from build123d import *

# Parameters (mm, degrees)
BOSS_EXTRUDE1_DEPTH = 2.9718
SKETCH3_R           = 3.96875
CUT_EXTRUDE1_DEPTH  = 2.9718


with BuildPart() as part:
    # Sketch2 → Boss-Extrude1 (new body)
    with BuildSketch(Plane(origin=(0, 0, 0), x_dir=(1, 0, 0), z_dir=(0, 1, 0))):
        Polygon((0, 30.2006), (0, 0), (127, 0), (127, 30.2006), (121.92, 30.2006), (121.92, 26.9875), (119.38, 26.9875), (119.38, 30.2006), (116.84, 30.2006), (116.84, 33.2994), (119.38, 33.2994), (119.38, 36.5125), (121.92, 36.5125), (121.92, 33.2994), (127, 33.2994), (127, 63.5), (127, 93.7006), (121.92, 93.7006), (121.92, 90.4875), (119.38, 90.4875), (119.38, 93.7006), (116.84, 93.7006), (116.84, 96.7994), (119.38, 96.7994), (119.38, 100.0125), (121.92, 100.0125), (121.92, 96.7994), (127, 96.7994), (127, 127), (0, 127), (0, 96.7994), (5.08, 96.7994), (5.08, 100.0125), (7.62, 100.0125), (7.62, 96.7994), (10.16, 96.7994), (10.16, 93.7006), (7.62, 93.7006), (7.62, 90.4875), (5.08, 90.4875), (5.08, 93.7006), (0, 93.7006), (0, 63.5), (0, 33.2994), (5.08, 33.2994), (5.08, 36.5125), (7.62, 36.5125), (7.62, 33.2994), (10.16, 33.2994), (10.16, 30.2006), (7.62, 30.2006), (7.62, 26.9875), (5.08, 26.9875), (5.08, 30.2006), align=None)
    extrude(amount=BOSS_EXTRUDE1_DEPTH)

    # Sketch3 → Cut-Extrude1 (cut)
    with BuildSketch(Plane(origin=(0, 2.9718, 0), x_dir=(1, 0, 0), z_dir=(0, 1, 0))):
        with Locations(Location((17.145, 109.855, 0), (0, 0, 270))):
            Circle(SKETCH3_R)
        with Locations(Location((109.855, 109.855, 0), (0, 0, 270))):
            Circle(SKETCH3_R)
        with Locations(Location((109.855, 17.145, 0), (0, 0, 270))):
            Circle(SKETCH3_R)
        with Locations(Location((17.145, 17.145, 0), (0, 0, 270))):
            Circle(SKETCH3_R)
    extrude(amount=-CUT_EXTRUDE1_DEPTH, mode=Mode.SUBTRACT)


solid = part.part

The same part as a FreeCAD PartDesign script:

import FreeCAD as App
import Part
import Sketcher
from FreeCAD import Vector
Q = App.Units.Quantity

doc = App.newDocument("Part")
body = doc.addObject("PartDesign::Body", "Body")

# Sketch on XZ plane
sketch1 = doc.addObject("Sketcher::SketchObject", "Sketch")
body.addObject(sketch1)
sketch1.AttachmentSupport = (doc.XZ_Plane, [""])
sketch1.MapMode = "FlatFace"
sketch1.addGeometry(Part.LineSegment(Vector(0, -30.2, 0), Vector(0, 0, 0)), False)
sketch1.addGeometry(Part.LineSegment(Vector(0, 0, 0), Vector(127, 0, 0)), False)
sketch1.addGeometry(Part.LineSegment(Vector(127, 0, 0), Vector(127, -30.2, 0)), False)
sketch1.addGeometry(Part.LineSegment(Vector(127, -30.2, 0), Vector(121.9, -30.2, 0)), False)
sketch1.addGeometry(Part.LineSegment(Vector(121.9, -30.2, 0), Vector(121.9, -27, 0)), False)
sketch1.addGeometry(Part.LineSegment(Vector(121.9, -27, 0), Vector(119.4, -27, 0)), False)
sketch1.addGeometry(Part.LineSegment(Vector(119.4, -27, 0), Vector(119.4, -30.2, 0)), False)
sketch1.addGeometry(Part.LineSegment(Vector(119.4, -30.2, 0), Vector(116.8, -30.2, 0)), False)
sketch1.addGeometry(Part.LineSegment(Vector(116.8, -30.2, 0), Vector(116.8, -33.3, 0)), False)
sketch1.addGeometry(Part.LineSegment(Vector(116.8, -33.3, 0), Vector(119.4, -33.3, 0)), False)
sketch1.addGeometry(Part.LineSegment(Vector(119.4, -33.3, 0), Vector(119.4, -36.5, 0)), False)
sketch1.addGeometry(Part.LineSegment(Vector(119.4, -36.5, 0), Vector(121.9, -36.5, 0)), False)
sketch1.addGeometry(Part.LineSegment(Vector(121.9, -36.5, 0), Vector(121.9, -33.3, 0)), False)
sketch1.addGeometry(Part.LineSegment(Vector(121.9, -33.3, 0), Vector(127, -33.3, 0)), False)
sketch1.addGeometry(Part.LineSegment(Vector(127, -33.3, 0), Vector(127, -93.7, 0)), False)
sketch1.addGeometry(Part.LineSegment(Vector(127, -93.7, 0), Vector(121.9, -93.7, 0)), False)
sketch1.addGeometry(Part.LineSegment(Vector(121.9, -93.7, 0), Vector(121.9, -90.5, 0)), False)
sketch1.addGeometry(Part.LineSegment(Vector(121.9, -90.5, 0), Vector(119.4, -90.5, 0)), False)
sketch1.addGeometry(Part.LineSegment(Vector(119.4, -90.5, 0), Vector(119.4, -93.7, 0)), False)
sketch1.addGeometry(Part.LineSegment(Vector(119.4, -93.7, 0), Vector(116.8, -93.7, 0)), False)
sketch1.addGeometry(Part.LineSegment(Vector(116.8, -93.7, 0), Vector(116.8, -96.8, 0)), False)
sketch1.addGeometry(Part.LineSegment(Vector(116.8, -96.8, 0), Vector(119.4, -96.8, 0)), False)
sketch1.addGeometry(Part.LineSegment(Vector(119.4, -96.8, 0), Vector(119.4, -100, 0)), False)
sketch1.addGeometry(Part.LineSegment(Vector(119.4, -100, 0), Vector(121.9, -100, 0)), False)
sketch1.addGeometry(Part.LineSegment(Vector(121.9, -100, 0), Vector(121.9, -96.8, 0)), False)
sketch1.addGeometry(Part.LineSegment(Vector(121.9, -96.8, 0), Vector(127, -96.8, 0)), False)
sketch1.addGeometry(Part.LineSegment(Vector(127, -96.8, 0), Vector(127, -127, 0)), False)
sketch1.addGeometry(Part.LineSegment(Vector(127, -127, 0), Vector(0, -127, 0)), False)
sketch1.addGeometry(Part.LineSegment(Vector(0, -127, 0), Vector(0, -96.8, 0)), False)
sketch1.addGeometry(Part.LineSegment(Vector(0, -96.8, 0), Vector(5.1, -96.8, 0)), False)
sketch1.addGeometry(Part.LineSegment(Vector(5.1, -96.8, 0), Vector(5.1, -100, 0)), False)
sketch1.addGeometry(Part.LineSegment(Vector(5.1, -100, 0), Vector(7.6, -100, 0)), False)
sketch1.addGeometry(Part.LineSegment(Vector(7.6, -100, 0), Vector(7.6, -96.8, 0)), False)
sketch1.addGeometry(Part.LineSegment(Vector(7.6, -96.8, 0), Vector(10.2, -96.8, 0)), False)
sketch1.addGeometry(Part.LineSegment(Vector(10.2, -96.8, 0), Vector(10.2, -93.7, 0)), False)
sketch1.addGeometry(Part.LineSegment(Vector(10.2, -93.7, 0), Vector(7.6, -93.7, 0)), False)
sketch1.addGeometry(Part.LineSegment(Vector(7.6, -93.7, 0), Vector(7.6, -90.5, 0)), False)
sketch1.addGeometry(Part.LineSegment(Vector(7.6, -90.5, 0), Vector(5.1, -90.5, 0)), False)
sketch1.addGeometry(Part.LineSegment(Vector(5.1, -90.5, 0), Vector(5.1, -93.7, 0)), False)
sketch1.addGeometry(Part.LineSegment(Vector(5.1, -93.7, 0), Vector(0, -93.7, 0)), False)
sketch1.addGeometry(Part.LineSegment(Vector(0, -93.7, 0), Vector(0, -33.3, 0)), False)
sketch1.addGeometry(Part.LineSegment(Vector(0, -33.3, 0), Vector(5.1, -33.3, 0)), False)
sketch1.addGeometry(Part.LineSegment(Vector(5.1, -33.3, 0), Vector(5.1, -36.5, 0)), False)
sketch1.addGeometry(Part.LineSegment(Vector(5.1, -36.5, 0), Vector(7.6, -36.5, 0)), False)
sketch1.addGeometry(Part.LineSegment(Vector(7.6, -36.5, 0), Vector(7.6, -33.3, 0)), False)
sketch1.addGeometry(Part.LineSegment(Vector(7.6, -33.3, 0), Vector(10.2, -33.3, 0)), False)
sketch1.addGeometry(Part.LineSegment(Vector(10.2, -33.3, 0), Vector(10.2, -30.2, 0)), False)
sketch1.addGeometry(Part.LineSegment(Vector(10.2, -30.2, 0), Vector(7.6, -30.2, 0)), False)
sketch1.addGeometry(Part.LineSegment(Vector(7.6, -30.2, 0), Vector(7.6, -27, 0)), False)
sketch1.addGeometry(Part.LineSegment(Vector(7.6, -27, 0), Vector(5.1, -27, 0)), False)
sketch1.addGeometry(Part.LineSegment(Vector(5.1, -27, 0), Vector(5.1, -30.2, 0)), False)
sketch1.addGeometry(Part.LineSegment(Vector(5.1, -30.2, 0), Vector(0, -30.2, 0)), False)
sketch1.addConstraint(Sketcher.Constraint("Coincident", 0, 2, 1, 1))
sketch1.addConstraint(Sketcher.Constraint("Coincident", 1, 2, 2, 1))
sketch1.addConstraint(Sketcher.Constraint("Coincident", 2, 2, 3, 1))
sketch1.addConstraint(Sketcher.Constraint("Coincident", 3, 2, 4, 1))
sketch1.addConstraint(Sketcher.Constraint("Coincident", 4, 2, 5, 1))
sketch1.addConstraint(Sketcher.Constraint("Coincident", 5, 2, 6, 1))
sketch1.addConstraint(Sketcher.Constraint("Coincident", 6, 2, 7, 1))
sketch1.addConstraint(Sketcher.Constraint("Coincident", 7, 2, 8, 1))
sketch1.addConstraint(Sketcher.Constraint("Coincident", 8, 2, 9, 1))
sketch1.addConstraint(Sketcher.Constraint("Coincident", 9, 2, 10, 1))
sketch1.addConstraint(Sketcher.Constraint("Coincident", 10, 2, 11, 1))
sketch1.addConstraint(Sketcher.Constraint("Coincident", 11, 2, 12, 1))
sketch1.addConstraint(Sketcher.Constraint("Coincident", 12, 2, 13, 1))
sketch1.addConstraint(Sketcher.Constraint("Coincident", 13, 2, 14, 1))
sketch1.addConstraint(Sketcher.Constraint("Coincident", 14, 2, 15, 1))
sketch1.addConstraint(Sketcher.Constraint("Coincident", 15, 2, 16, 1))
sketch1.addConstraint(Sketcher.Constraint("Coincident", 16, 2, 17, 1))
sketch1.addConstraint(Sketcher.Constraint("Coincident", 17, 2, 18, 1))
sketch1.addConstraint(Sketcher.Constraint("Coincident", 18, 2, 19, 1))
sketch1.addConstraint(Sketcher.Constraint("Coincident", 19, 2, 20, 1))
sketch1.addConstraint(Sketcher.Constraint("Coincident", 20, 2, 21, 1))
sketch1.addConstraint(Sketcher.Constraint("Coincident", 21, 2, 22, 1))
sketch1.addConstraint(Sketcher.Constraint("Coincident", 22, 2, 23, 1))
sketch1.addConstraint(Sketcher.Constraint("Coincident", 23, 2, 24, 1))
sketch1.addConstraint(Sketcher.Constraint("Coincident", 24, 2, 25, 1))
sketch1.addConstraint(Sketcher.Constraint("Coincident", 25, 2, 26, 1))
sketch1.addConstraint(Sketcher.Constraint("Coincident", 26, 2, 27, 1))
sketch1.addConstraint(Sketcher.Constraint("Coincident", 27, 2, 28, 1))
sketch1.addConstraint(Sketcher.Constraint("Coincident", 28, 2, 29, 1))
sketch1.addConstraint(Sketcher.Constraint("Coincident", 29, 2, 30, 1))
sketch1.addConstraint(Sketcher.Constraint("Coincident", 30, 2, 31, 1))
sketch1.addConstraint(Sketcher.Constraint("Coincident", 31, 2, 32, 1))
sketch1.addConstraint(Sketcher.Constraint("Coincident", 32, 2, 33, 1))
sketch1.addConstraint(Sketcher.Constraint("Coincident", 33, 2, 34, 1))
sketch1.addConstraint(Sketcher.Constraint("Coincident", 34, 2, 35, 1))
sketch1.addConstraint(Sketcher.Constraint("Coincident", 35, 2, 36, 1))
sketch1.addConstraint(Sketcher.Constraint("Coincident", 36, 2, 37, 1))
sketch1.addConstraint(Sketcher.Constraint("Coincident", 37, 2, 38, 1))
sketch1.addConstraint(Sketcher.Constraint("Coincident", 38, 2, 39, 1))
sketch1.addConstraint(Sketcher.Constraint("Coincident", 39, 2, 40, 1))
sketch1.addConstraint(Sketcher.Constraint("Coincident", 40, 2, 41, 1))
sketch1.addConstraint(Sketcher.Constraint("Coincident", 41, 2, 42, 1))
sketch1.addConstraint(Sketcher.Constraint("Coincident", 42, 2, 43, 1))
sketch1.addConstraint(Sketcher.Constraint("Coincident", 43, 2, 44, 1))
sketch1.addConstraint(Sketcher.Constraint("Coincident", 44, 2, 45, 1))
sketch1.addConstraint(Sketcher.Constraint("Coincident", 45, 2, 46, 1))
sketch1.addConstraint(Sketcher.Constraint("Coincident", 46, 2, 47, 1))
sketch1.addConstraint(Sketcher.Constraint("Coincident", 47, 2, 48, 1))
sketch1.addConstraint(Sketcher.Constraint("Coincident", 48, 2, 49, 1))
sketch1.addConstraint(Sketcher.Constraint("Coincident", 49, 2, 50, 1))
sketch1.addConstraint(Sketcher.Constraint("Coincident", 50, 2, 51, 1))
sketch1.addConstraint(Sketcher.Constraint("Coincident", 51, 2, 0, 1))
sketch1.addConstraint(Sketcher.Constraint("Vertical", 0))
sketch1.addConstraint(Sketcher.Constraint("Horizontal", 1))
sketch1.addConstraint(Sketcher.Constraint("Vertical", 2))
sketch1.addConstraint(Sketcher.Constraint("Horizontal", 3))
sketch1.addConstraint(Sketcher.Constraint("Vertical", 4))
sketch1.addConstraint(Sketcher.Constraint("Horizontal", 5))
sketch1.addConstraint(Sketcher.Constraint("Vertical", 6))
sketch1.addConstraint(Sketcher.Constraint("Horizontal", 7))
sketch1.addConstraint(Sketcher.Constraint("Vertical", 8))
sketch1.addConstraint(Sketcher.Constraint("Horizontal", 9))
sketch1.addConstraint(Sketcher.Constraint("Vertical", 10))
sketch1.addConstraint(Sketcher.Constraint("Horizontal", 11))
sketch1.addConstraint(Sketcher.Constraint("Vertical", 12))
sketch1.addConstraint(Sketcher.Constraint("Horizontal", 13))
sketch1.addConstraint(Sketcher.Constraint("Vertical", 14))
sketch1.addConstraint(Sketcher.Constraint("Horizontal", 15))
sketch1.addConstraint(Sketcher.Constraint("Vertical", 16))
sketch1.addConstraint(Sketcher.Constraint("Horizontal", 17))
sketch1.addConstraint(Sketcher.Constraint("Vertical", 18))
sketch1.addConstraint(Sketcher.Constraint("Horizontal", 19))
sketch1.addConstraint(Sketcher.Constraint("Vertical", 20))
sketch1.addConstraint(Sketcher.Constraint("Horizontal", 21))
sketch1.addConstraint(Sketcher.Constraint("Vertical", 22))
sketch1.addConstraint(Sketcher.Constraint("Horizontal", 23))
sketch1.addConstraint(Sketcher.Constraint("Vertical", 24))
sketch1.addConstraint(Sketcher.Constraint("Horizontal", 25))
sketch1.addConstraint(Sketcher.Constraint("Vertical", 26))
sketch1.addConstraint(Sketcher.Constraint("Horizontal", 27))
sketch1.addConstraint(Sketcher.Constraint("Vertical", 28))
sketch1.addConstraint(Sketcher.Constraint("Horizontal", 29))
sketch1.addConstraint(Sketcher.Constraint("Vertical", 30))
sketch1.addConstraint(Sketcher.Constraint("Horizontal", 31))
sketch1.addConstraint(Sketcher.Constraint("Vertical", 32))
sketch1.addConstraint(Sketcher.Constraint("Horizontal", 33))
sketch1.addConstraint(Sketcher.Constraint("Vertical", 34))
sketch1.addConstraint(Sketcher.Constraint("Horizontal", 35))
sketch1.addConstraint(Sketcher.Constraint("Vertical", 36))
sketch1.addConstraint(Sketcher.Constraint("Horizontal", 37))
sketch1.addConstraint(Sketcher.Constraint("Vertical", 38))
sketch1.addConstraint(Sketcher.Constraint("Horizontal", 39))
sketch1.addConstraint(Sketcher.Constraint("Vertical", 40))
sketch1.addConstraint(Sketcher.Constraint("Horizontal", 41))
sketch1.addConstraint(Sketcher.Constraint("Vertical", 42))
sketch1.addConstraint(Sketcher.Constraint("Horizontal", 43))
sketch1.addConstraint(Sketcher.Constraint("Vertical", 44))
sketch1.addConstraint(Sketcher.Constraint("Horizontal", 45))
sketch1.addConstraint(Sketcher.Constraint("Vertical", 46))
sketch1.addConstraint(Sketcher.Constraint("Horizontal", 47))
sketch1.addConstraint(Sketcher.Constraint("Vertical", 48))
sketch1.addConstraint(Sketcher.Constraint("Horizontal", 49))
sketch1.addConstraint(Sketcher.Constraint("Vertical", 50))
sketch1.addConstraint(Sketcher.Constraint("Horizontal", 51))
sketch1.addConstraint(Sketcher.Constraint("Coincident", 0, 2, -1, 1))
sketch1.addConstraint(Sketcher.Constraint("PointOnObject", 27, 2, -2))
sketch1.addConstraint(Sketcher.Constraint("PointOnObject", 39, 2, -2))
sketch1.addConstraint(Sketcher.Constraint("Horizontal", 3, 2, 6, 2))
sketch1.addConstraint(Sketcher.Constraint("Horizontal", 9, 2, 12, 2))
sketch1.addConstraint(Sketcher.Constraint("Horizontal", 15, 2, 18, 2))
sketch1.addConstraint(Sketcher.Constraint("Horizontal", 21, 2, 24, 2))
sketch1.addConstraint(Sketcher.Constraint("Horizontal", 25, 2, 28, 2))
sketch1.addConstraint(Sketcher.Constraint("Horizontal", 23, 2, 30, 2))
sketch1.addConstraint(Sketcher.Constraint("Horizontal", 29, 2, 32, 2))
sketch1.addConstraint(Sketcher.Constraint("Horizontal", 19, 2, 34, 2))
sketch1.addConstraint(Sketcher.Constraint("Horizontal", 17, 2, 36, 2))
sketch1.addConstraint(Sketcher.Constraint("Horizontal", 35, 2, 38, 2))
sketch1.addConstraint(Sketcher.Constraint("Horizontal", 13, 2, 40, 2))
sketch1.addConstraint(Sketcher.Constraint("Horizontal", 11, 2, 42, 2))
sketch1.addConstraint(Sketcher.Constraint("Horizontal", 41, 2, 44, 2))
sketch1.addConstraint(Sketcher.Constraint("Horizontal", 7, 2, 46, 2))
sketch1.addConstraint(Sketcher.Constraint("Horizontal", 5, 2, 48, 2))
sketch1.addConstraint(Sketcher.Constraint("Horizontal", 47, 2, 50, 2))
sketch1.addConstraint(Sketcher.Constraint("Vertical", 6, 2, 9, 2))
sketch1.addConstraint(Sketcher.Constraint("Vertical", 4, 2, 11, 2))
sketch1.addConstraint(Sketcher.Constraint("Vertical", 2, 2, 13, 2))
sketch1.addConstraint(Sketcher.Constraint("Vertical", 12, 2, 15, 2))
sketch1.addConstraint(Sketcher.Constraint("Vertical", 10, 2, 17, 2))
sketch1.addConstraint(Sketcher.Constraint("Vertical", 8, 2, 19, 2))
sketch1.addConstraint(Sketcher.Constraint("Vertical", 18, 2, 21, 2))
sketch1.addConstraint(Sketcher.Constraint("Vertical", 16, 2, 23, 2))
sketch1.addConstraint(Sketcher.Constraint("Vertical", 14, 2, 25, 2))
sketch1.addConstraint(Sketcher.Constraint("Vertical", 32, 2, 35, 2))
sketch1.addConstraint(Sketcher.Constraint("Vertical", 30, 2, 37, 2))
sketch1.addConstraint(Sketcher.Constraint("Vertical", 38, 2, 41, 2))
sketch1.addConstraint(Sketcher.Constraint("Vertical", 36, 2, 43, 2))
sketch1.addConstraint(Sketcher.Constraint("Vertical", 34, 2, 45, 2))
sketch1.addConstraint(Sketcher.Constraint("Vertical", 44, 2, 47, 2))
sketch1.addConstraint(Sketcher.Constraint("Vertical", 42, 2, 49, 2))
sketch1.addConstraint(Sketcher.Constraint("Equal", 5, 7))
sketch1.addConstraint(Sketcher.Constraint("Equal", 25, 29))
sketch1.addConstraint(Sketcher.Constraint("Equal", 23, 31))
sketch1.addConstraint(Sketcher.Constraint("Equal", 31, 33))
sketch1.addConstraint(Sketcher.Constraint("Equal", 6, 10))
sketch1.addConstraint(Sketcher.Constraint("Equal", 12, 16))
sketch1.addConstraint(Sketcher.Constraint("Equal", 8, 20))
sketch1.addConstraint(Sketcher.Constraint("Equal", 18, 22))
sketch1.addConstraint(Sketcher.Constraint("Equal", 2, 26))
sketch1.addConstraint(Sketcher.Constraint("DistanceX", 1, 1, 1, 2, Q("5 in")))
sketch1.addConstraint(Sketcher.Constraint("DistanceX", 3, 2, 3, 1, Q("0.2 in")))
sketch1.addConstraint(Sketcher.Constraint("DistanceX", 5, 2, 5, 1, Q("0.1 in")))
sketch1.addConstraint(Sketcher.Constraint("DistanceY", 26, 2, -1, 1, Q("5 in")))
sketch1.addConstraint(Sketcher.Constraint("DistanceY", 0, 1, 0, 2, Q("1.189 in")))
sketch1.addConstraint(Sketcher.Constraint("DistanceY", 8, 2, 8, 1, Q("0.122 in")))
sketch1.addConstraint(Sketcher.Constraint("DistanceY", 4, 1, 4, 2, Q("0.1265 in")))
pad1 = doc.addObject("PartDesign::Pad", "Pad")
body.addObject(pad1)
pad1.Profile = sketch1
pad1.Length = Q("0.117 in")
pad1.Reversed = True

# Sketch on XZ plane
sketch2 = doc.addObject("Sketcher::SketchObject", "Sketch001")
body.addObject(sketch2)
sketch2.AttachmentSupport = (doc.XZ_Plane, [""])
sketch2.MapMode = "FlatFace"
sketch2.AttachmentOffset = App.Placement(Vector(0, 0, -0.117 * 25.4), App.Rotation())
sketch2.addGeometry(Part.Circle(Vector(17.1, -109.9, 0), Vector(0, 0, 1), 4), False)
sketch2.addGeometry(Part.Circle(Vector(109.9, -109.9, 0), Vector(0, 0, 1), 4), False)
sketch2.addGeometry(Part.Circle(Vector(109.9, -17.1, 0), Vector(0, 0, 1), 4), False)
sketch2.addGeometry(Part.Circle(Vector(17.1, -17.1, 0), Vector(0, 0, 1), 4), False)
sketch2.addConstraint(Sketcher.Constraint("Equal", 0, 1))
sketch2.addConstraint(Sketcher.Constraint("Equal", 1, 2))
sketch2.addConstraint(Sketcher.Constraint("Equal", 2, 3))
sketch2.addConstraint(Sketcher.Constraint("Horizontal", 0, 3, 1, 3))
sketch2.addConstraint(Sketcher.Constraint("Horizontal", 2, 3, 3, 3))
sketch2.addConstraint(Sketcher.Constraint("Vertical", 1, 3, 2, 3))
sketch2.addConstraint(Sketcher.Constraint("Vertical", 0, 3, 3, 3))
sketch2.addConstraint(Sketcher.Constraint("Diameter", 0, Q("0.3125 in")))
sketch2.addConstraint(Sketcher.Constraint("DistanceX", 0, 3, 1, 3, Q("3.65 in")))
sketch2.addConstraint(Sketcher.Constraint("DistanceY", 1, 3, 2, 3, Q("3.65 in")))
sketch2.addConstraint(Sketcher.Constraint("DistanceX", -1, 1, 0, 3, Q("0.675 in")))
sketch2.addConstraint(Sketcher.Constraint("DistanceY", 0, 3, -1, 1, Q("4.325 in")))
pocket1 = doc.addObject("PartDesign::Pocket", "Pocket")
body.addObject(pocket1)
pocket1.Profile = sketch2
pocket1.Length = Q("0.117 in")
pocket1.Reversed = True

doc.recompute()
